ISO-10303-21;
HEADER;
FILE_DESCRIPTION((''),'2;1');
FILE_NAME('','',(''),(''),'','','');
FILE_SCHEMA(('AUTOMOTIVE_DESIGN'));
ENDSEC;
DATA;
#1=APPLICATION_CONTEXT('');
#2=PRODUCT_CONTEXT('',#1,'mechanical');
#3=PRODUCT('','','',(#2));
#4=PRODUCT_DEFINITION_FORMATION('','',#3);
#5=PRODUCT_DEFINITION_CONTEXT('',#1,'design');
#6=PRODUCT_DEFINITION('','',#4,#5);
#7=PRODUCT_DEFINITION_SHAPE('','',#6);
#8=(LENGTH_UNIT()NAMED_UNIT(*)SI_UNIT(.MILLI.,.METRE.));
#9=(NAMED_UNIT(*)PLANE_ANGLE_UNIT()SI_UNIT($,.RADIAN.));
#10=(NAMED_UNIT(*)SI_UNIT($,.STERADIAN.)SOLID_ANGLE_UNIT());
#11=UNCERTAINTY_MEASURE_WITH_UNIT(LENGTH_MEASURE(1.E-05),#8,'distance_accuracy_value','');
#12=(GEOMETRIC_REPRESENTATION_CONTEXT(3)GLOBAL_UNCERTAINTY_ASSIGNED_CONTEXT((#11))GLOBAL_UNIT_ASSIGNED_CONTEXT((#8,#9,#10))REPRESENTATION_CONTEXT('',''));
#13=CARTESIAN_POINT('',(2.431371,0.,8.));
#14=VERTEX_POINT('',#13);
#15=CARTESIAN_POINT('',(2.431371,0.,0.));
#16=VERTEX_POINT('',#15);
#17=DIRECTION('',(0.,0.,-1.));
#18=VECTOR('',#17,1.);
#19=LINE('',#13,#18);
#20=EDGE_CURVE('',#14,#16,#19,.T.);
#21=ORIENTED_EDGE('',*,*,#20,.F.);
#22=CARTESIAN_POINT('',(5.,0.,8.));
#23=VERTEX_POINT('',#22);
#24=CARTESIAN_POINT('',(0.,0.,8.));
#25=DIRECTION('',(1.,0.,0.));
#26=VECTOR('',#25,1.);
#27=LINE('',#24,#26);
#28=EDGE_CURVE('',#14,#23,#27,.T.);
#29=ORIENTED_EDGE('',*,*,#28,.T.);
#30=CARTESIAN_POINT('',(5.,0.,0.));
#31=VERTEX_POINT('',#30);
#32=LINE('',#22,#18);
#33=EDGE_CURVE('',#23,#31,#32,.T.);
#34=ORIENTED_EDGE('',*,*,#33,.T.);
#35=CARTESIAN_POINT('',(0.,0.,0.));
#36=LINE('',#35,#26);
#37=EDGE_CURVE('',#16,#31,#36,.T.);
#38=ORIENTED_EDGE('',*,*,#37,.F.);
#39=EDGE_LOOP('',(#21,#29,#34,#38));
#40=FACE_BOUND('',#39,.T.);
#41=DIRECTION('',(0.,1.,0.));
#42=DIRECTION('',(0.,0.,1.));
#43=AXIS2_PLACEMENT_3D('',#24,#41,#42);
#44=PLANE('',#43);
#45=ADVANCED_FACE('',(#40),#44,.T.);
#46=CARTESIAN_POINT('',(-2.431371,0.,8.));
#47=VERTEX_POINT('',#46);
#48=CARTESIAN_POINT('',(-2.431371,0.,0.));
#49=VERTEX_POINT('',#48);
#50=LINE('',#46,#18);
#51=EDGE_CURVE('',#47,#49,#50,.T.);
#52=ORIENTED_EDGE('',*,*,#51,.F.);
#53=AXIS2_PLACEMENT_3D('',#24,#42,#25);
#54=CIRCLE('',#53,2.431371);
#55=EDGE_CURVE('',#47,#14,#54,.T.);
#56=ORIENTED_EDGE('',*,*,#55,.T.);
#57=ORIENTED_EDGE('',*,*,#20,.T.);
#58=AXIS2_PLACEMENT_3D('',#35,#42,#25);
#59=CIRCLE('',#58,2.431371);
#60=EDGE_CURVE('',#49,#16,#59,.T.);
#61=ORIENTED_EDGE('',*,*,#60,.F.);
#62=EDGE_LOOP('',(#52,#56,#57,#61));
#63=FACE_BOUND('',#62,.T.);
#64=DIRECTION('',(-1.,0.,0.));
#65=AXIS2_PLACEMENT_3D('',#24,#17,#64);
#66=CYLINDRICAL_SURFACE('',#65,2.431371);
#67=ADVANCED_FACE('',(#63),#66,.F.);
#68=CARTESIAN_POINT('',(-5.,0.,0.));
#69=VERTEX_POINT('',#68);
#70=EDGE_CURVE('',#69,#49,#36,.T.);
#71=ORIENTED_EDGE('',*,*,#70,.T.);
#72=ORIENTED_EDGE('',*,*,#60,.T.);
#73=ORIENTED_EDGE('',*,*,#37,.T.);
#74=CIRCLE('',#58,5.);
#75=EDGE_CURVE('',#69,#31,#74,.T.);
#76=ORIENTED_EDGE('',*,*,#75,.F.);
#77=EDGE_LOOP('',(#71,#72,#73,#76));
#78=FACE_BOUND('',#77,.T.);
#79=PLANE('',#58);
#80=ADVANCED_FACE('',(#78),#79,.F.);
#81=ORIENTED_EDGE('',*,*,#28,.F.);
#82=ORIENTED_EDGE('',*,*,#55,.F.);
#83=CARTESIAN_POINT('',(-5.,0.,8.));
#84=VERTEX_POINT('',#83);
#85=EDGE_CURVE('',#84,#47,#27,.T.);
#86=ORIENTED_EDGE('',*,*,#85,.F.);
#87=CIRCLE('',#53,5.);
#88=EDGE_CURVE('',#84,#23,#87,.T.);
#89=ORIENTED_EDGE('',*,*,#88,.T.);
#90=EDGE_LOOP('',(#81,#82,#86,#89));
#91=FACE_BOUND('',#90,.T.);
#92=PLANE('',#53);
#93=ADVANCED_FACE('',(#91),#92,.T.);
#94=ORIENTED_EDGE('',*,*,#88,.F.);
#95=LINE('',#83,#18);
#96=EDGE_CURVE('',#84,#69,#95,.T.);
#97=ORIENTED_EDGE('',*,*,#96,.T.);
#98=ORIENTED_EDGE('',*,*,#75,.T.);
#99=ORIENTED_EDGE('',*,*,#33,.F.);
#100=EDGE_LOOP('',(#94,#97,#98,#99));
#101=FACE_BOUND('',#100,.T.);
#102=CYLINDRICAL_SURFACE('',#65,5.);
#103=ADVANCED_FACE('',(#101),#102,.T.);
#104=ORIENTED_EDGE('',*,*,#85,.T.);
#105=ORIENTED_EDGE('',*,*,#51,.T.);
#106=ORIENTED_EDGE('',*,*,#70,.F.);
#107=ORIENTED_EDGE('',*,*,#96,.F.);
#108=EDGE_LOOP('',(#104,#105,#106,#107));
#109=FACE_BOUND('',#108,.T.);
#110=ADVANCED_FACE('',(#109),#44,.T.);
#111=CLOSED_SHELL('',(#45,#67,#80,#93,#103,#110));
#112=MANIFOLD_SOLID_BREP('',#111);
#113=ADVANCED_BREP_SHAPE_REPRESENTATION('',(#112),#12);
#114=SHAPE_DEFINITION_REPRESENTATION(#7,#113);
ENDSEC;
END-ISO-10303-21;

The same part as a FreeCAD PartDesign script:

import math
import FreeCAD as App
import Part
import Sketcher
Q = App.Units.Quantity

doc = App.newDocument("Part")
body = doc.addObject("PartDesign::Body", "Body")

# Sketch on XY plane
sketch1 = body.newObject("Sketcher::SketchObject", "Sketch")
sketch1.AttachmentSupport = (doc.getObject("XY_Plane"), [""])
sketch1.MapMode = "FlatFace"
sketch1.addGeometry(Part.LineSegment(App.Vector(5, 0, 0), App.Vector(2.431371, 0, 0)), False)
sketch1.addGeometry(Part.ArcOfCircle(Part.Circle(App.Vector(0, 0, 0), App.Vector(0, 0, 1), 2.431371), math.radians(180), math.radians(360)), False)
sketch1.addGeometry(Part.LineSegment(App.Vector(-2.431371, 0, 0), App.Vector(-5, 0, 0)), False)
sketch1.addGeometry(Part.ArcOfCircle(Part.Circle(App.Vector(0, 0, 0), App.Vector(0, 0, 1), 5), math.radians(180), math.radians(360)), False)
sketch1.addConstraint(Sketcher.Constraint("Coincident", 0, 2, 1, 2))
sketch1.addConstraint(Sketcher.Constraint("Coincident", 1, 1, 2, 1))
sketch1.addConstraint(Sketcher.Constraint("Coincident", 2, 2, 3, 1))
sketch1.addConstraint(Sketcher.Constraint("Coincident", 3, 2, 0, 1))
sketch1.addConstraint(Sketcher.Constraint("Horizontal", 0))
sketch1.addConstraint(Sketcher.Constraint("Horizontal", 2))
sketch1.addConstraint(Sketcher.Constraint("Coincident", 1, 3, -1, 1))
sketch1.addConstraint(Sketcher.Constraint("Coincident", 3, 3, -1, 1))
sketch1.addConstraint(Sketcher.Constraint("PointOnObject", 0, 2, -1))
sketch1.addConstraint(Sketcher.Constraint("PointOnObject", 1, 1, -1))
sketch1.addConstraint(Sketcher.Constraint("Radius", 3, Q("5 mm")))
sketch1.addConstraint(Sketcher.Constraint("Radius", 1, Q("2.431371 mm")))
pad1 = body.newObject("PartDesign::Pad", "Pad")
pad1.Profile = sketch1
pad1.Length = 8

doc.recompute()
